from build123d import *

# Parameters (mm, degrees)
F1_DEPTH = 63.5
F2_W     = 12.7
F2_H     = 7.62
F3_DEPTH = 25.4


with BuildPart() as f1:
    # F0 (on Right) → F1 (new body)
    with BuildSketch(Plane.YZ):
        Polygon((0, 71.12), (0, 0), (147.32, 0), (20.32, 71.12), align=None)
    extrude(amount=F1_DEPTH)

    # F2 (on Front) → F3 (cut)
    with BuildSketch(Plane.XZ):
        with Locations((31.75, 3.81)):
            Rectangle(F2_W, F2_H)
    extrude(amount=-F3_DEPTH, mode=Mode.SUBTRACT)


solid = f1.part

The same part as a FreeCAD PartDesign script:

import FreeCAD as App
import Part
import Sketcher
Q = App.Units.Quantity

doc = App.newDocument("Part")
body = doc.addObject("PartDesign::Body", "Body")

sketch1 = body.newObject("Sketcher::SketchObject", "Sketch")
sketch1.AttachmentSupport = (doc.getObject("YZ_Plane"), [""])
sketch1.MapMode = "FlatFace"
sketch1.addGeometry([
    Part.LineSegment(App.Vector(0, 71, 0), App.Vector(0, 0, 0)),
    Part.LineSegment(App.Vector(0, 0, 0), App.Vector(147, 0, 0)),
    Part.LineSegment(App.Vector(147, 0, 0), App.Vector(20, 71, 0)),
    Part.LineSegment(App.Vector(20, 71, 0), App.Vector(0, 71, 0)),
], False)
sketch1.addConstraint([
    Sketcher.Constraint("Coincident", 0, 2, 1, 1),
    Sketcher.Constraint("Coincident", 1, 2, 2, 1),
    Sketcher.Constraint("Coincident", 2, 2, 3, 1),
    Sketcher.Constraint("Coincident", 3, 2, 0, 1),
    Sketcher.Constraint("Vertical", 0),
    Sketcher.Constraint("Horizontal", 1),
    Sketcher.Constraint("Horizontal", 3),
    Sketcher.Constraint("Coincident", 0, 2, -1, 1),
    Sketcher.Constraint("DistanceX", 1, 1, 1, 2, Q("5.8 in")),
    Sketcher.Constraint("DistanceX", 3, 2, 3, 1, Q("0.8 in")),
    Sketcher.Constraint("DistanceY", 0, 2, 0, 1, Q("2.8 in")),
])
pad1 = body.newObject("PartDesign::Pad", "Pad")
pad1.Profile = sketch1
pad1.Length = Q("2.5 in")

sketch2 = body.newObject("Sketcher::SketchObject", "Sketch001")
sketch2.AttachmentSupport = (doc.getObject("XZ_Plane"), [""])
sketch2.MapMode = "FlatFace"
sketch2.addGeometry([
    Part.LineSegment(App.Vector(25, 8, 0), App.Vector(25, 0, 0)),
    Part.LineSegment(App.Vector(25, 0, 0), App.Vector(38, 0, 0)),
    Part.LineSegment(App.Vector(38, 0, 0), App.Vector(38, 8, 0)),
    Part.LineSegment(App.Vector(38, 8, 0), App.Vector(25, 8, 0)),
], False)
sketch2.addConstraint([
    Sketcher.Constraint("Coincident", 0, 2, 1, 1),
    Sketcher.Constraint("Coincident", 1, 2, 2, 1),
    Sketcher.Constraint("Coincident", 2, 2, 3, 1),
    Sketcher.Constraint("Coincident", 3, 2, 0, 1),
    Sketcher.Constraint("Vertical", 0),
    Sketcher.Constraint("Horizontal", 1),
    Sketcher.Constraint("Vertical", 2),
    Sketcher.Constraint("Horizontal", 3),
    Sketcher.Constraint("PointOnObject", 0, 2, -1),
    Sketcher.Constraint("DistanceX", 1, 1, 1, 2, Q("0.5 in")),
    Sketcher.Constraint("DistanceY", 0, 2, 0, 1, Q("0.3 in")),
    Sketcher.Constraint("DistanceX", -1, 1, 0, 2, Q("1 in")),
])
pocket1 = body.newObject("PartDesign::Pocket", "Pocket")
pocket1.Profile = sketch2
pocket1.Length = Q("1 in")

doc.recompute()
